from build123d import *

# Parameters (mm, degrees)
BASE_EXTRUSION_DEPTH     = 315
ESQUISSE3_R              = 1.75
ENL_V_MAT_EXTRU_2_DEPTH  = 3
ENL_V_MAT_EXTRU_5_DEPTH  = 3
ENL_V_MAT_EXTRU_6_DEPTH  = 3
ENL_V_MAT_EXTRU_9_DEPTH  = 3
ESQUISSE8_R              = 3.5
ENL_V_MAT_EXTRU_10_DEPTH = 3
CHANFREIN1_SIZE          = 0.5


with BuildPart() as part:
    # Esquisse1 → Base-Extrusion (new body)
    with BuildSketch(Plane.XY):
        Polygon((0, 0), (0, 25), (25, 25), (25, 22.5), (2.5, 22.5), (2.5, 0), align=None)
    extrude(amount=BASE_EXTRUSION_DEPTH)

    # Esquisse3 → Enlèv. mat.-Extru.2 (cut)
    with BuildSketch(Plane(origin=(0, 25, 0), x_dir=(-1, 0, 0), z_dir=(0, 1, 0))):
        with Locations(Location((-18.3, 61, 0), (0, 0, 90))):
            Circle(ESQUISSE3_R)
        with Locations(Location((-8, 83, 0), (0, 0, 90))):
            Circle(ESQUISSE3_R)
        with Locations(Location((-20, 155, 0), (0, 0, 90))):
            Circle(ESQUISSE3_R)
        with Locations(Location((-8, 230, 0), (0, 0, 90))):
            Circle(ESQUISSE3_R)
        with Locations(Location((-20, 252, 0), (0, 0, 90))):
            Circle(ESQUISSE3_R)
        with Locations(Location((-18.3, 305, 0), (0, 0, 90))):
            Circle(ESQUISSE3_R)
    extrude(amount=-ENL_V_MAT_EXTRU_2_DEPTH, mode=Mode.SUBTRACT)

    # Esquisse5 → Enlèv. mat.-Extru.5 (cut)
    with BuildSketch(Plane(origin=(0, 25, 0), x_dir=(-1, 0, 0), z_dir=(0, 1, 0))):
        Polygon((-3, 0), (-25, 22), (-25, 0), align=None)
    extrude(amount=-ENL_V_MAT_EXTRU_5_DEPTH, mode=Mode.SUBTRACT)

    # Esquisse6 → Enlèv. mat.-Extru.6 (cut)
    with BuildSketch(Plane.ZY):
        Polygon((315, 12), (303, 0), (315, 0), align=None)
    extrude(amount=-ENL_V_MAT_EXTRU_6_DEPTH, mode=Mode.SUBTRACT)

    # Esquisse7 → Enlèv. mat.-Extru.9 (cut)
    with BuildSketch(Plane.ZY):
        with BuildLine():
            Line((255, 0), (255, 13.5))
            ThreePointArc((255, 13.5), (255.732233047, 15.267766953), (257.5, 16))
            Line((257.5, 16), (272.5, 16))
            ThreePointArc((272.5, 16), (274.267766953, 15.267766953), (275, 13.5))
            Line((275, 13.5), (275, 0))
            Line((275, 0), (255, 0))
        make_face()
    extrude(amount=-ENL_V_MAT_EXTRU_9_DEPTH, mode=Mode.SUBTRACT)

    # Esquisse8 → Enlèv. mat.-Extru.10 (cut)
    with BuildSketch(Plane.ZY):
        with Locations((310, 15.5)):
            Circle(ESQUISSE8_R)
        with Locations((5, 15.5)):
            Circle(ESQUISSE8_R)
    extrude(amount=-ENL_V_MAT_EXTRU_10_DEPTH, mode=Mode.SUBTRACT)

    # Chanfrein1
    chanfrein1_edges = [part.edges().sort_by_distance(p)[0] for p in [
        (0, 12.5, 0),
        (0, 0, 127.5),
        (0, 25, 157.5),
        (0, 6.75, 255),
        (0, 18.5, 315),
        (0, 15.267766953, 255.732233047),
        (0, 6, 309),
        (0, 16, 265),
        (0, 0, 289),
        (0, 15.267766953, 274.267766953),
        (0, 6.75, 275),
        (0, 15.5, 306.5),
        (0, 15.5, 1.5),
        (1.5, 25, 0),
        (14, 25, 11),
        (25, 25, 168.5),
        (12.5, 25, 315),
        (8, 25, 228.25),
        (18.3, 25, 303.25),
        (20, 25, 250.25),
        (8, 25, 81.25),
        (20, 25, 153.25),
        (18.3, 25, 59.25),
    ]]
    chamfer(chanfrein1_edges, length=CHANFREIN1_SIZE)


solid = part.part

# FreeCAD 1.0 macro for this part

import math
import FreeCAD as App
import Part
import Sketcher

V = App.Vector
Q = App.Units.Quantity


def edges_at(feature, points):
    """Names of the edges that pass closest to the given points."""
    edges = feature.Shape.Edges
    near = lambda p: min(range(len(edges)), key=lambda i: edges[i].distToShape(Part.Vertex(*p))[0])
    return sorted({f"Edge{near(p) + 1}" for p in points})

doc = App.newDocument("Part")
params = doc.addObject("Spreadsheet::Sheet", "Params")
for row, (alias, value) in enumerate([
    ("sketch1_width", "25 mm"),
    ("sketch1_width2", "2.5 mm"),
    ("pad1_length", "315 mm"),
    ("sketch2_diameter", "3.5 mm"),
    ("pocket1_length", "3 mm"),
    ("sketch3_width", "22 mm"),
    ("pocket2_length", "3 mm"),
    ("sketch4_width", "12 mm"),
    ("pocket3_length", "3 mm"),
    ("sketch5_radius", "2.5 mm"),
    ("sketch5_height", "20 mm"),
    ("sketch5_width", "13.5 mm"),
    ("pocket4_length", "3 mm"),
    ("sketch6_diameter", "7 mm"),
    ("pocket5_length", "3 mm"),
    ("chamfer_size", "0.5 mm"),
], start=1):
    params.set(f"A{row}", alias)
    params.set(f"B{row}", "=" + value)
    params.setAlias(f"B{row}", alias)

body = doc.addObject("PartDesign::Body", "Body")

# Sketch on XY plane
sketch1 = body.newObject("Sketcher::SketchObject", "Sketch")
sketch1.AttachmentSupport = (doc.getObject("XY_Plane"), [""])
sketch1.MapMode = "FlatFace"
sketch1.addGeometry(Part.LineSegment(V(0, 25, 0), V(0, 0, 0)), False)
sketch1.addGeometry(Part.LineSegment(V(0, 0, 0), V(2.5, 0, 0)), False)
sketch1.addGeometry(Part.LineSegment(V(2.5, 0, 0), V(2.5, 22.5, 0)), False)
sketch1.addGeometry(Part.LineSegment(V(2.5, 22.5, 0), V(25, 22.5, 0)), False)
sketch1.addGeometry(Part.LineSegment(V(25, 22.5, 0), V(25, 25, 0)), False)
sketch1.addGeometry(Part.LineSegment(V(25, 25, 0), V(0, 25, 0)), False)
sketch1.addConstraint(Sketcher.Constraint("Coincident", 0, 2, 1, 1))
sketch1.addConstraint(Sketcher.Constraint("Coincident", 1, 2, 2, 1))
sketch1.addConstraint(Sketcher.Constraint("Coincident", 2, 2, 3, 1))
sketch1.addConstraint(Sketcher.Constraint("Coincident", 3, 2, 4, 1))
sketch1.addConstraint(Sketcher.Constraint("Coincident", 4, 2, 5, 1))
sketch1.addConstraint(Sketcher.Constraint("Coincident", 5, 2, 0, 1))
sketch1.addConstraint(Sketcher.Constraint("Vertical", 0))
sketch1.addConstraint(Sketcher.Constraint("Horizontal", 1))
sketch1.addConstraint(Sketcher.Constraint("Vertical", 2))
sketch1.addConstraint(Sketcher.Constraint("Horizontal", 3))
sketch1.addConstraint(Sketcher.Constraint("Vertical", 4))
sketch1.addConstraint(Sketcher.Constraint("Horizontal", 5))
sketch1.addConstraint(Sketcher.Constraint("Coincident", 0, 2, -1, 1))
sketch1.addConstraint(Sketcher.Constraint("Equal", 5, 0))
sketch1.addConstraint(Sketcher.Constraint("Equal", 3, 2))
sketch1.addConstraint(Sketcher.Constraint("DistanceX", 5, 2, 5, 1, Q("25 mm")))
sketch1.addConstraint(Sketcher.Constraint("DistanceX", 1, 1, 1, 2, Q("2.5 mm")))
sketch1.setExpression("Constraints[15]", "Params.sketch1_width")
sketch1.setExpression("Constraints[16]", "Params.sketch1_width2")
pad1 = body.newObject("PartDesign::Pad", "Pad")
pad1.Profile = sketch1
pad1.setExpression("Length", "Params.pad1_length")

# Sketch on XZ plane
sketch2 = body.newObject("Sketcher::SketchObject", "Sketch001")
sketch2.AttachmentSupport = (doc.getObject("XZ_Plane"), [""])
sketch2.MapMode = "FlatFace"
sketch2.AttachmentOffset = App.Placement(V(0, 0, -25), App.Rotation())
sketch2.addGeometry(Part.Circle(V(18.3, 61, 0), V(0, 0, 1), 1.8), False)
sketch2.addGeometry(Part.Circle(V(8, 83, 0), V(0, 0, 1), 1.8), False)
sketch2.addGeometry(Part.Circle(V(20, 155, 0), V(0, 0, 1), 1.8), False)
sketch2.addGeometry(Part.Circle(V(8, 230, 0), V(0, 0, 1), 1.8), False)
sketch2.addGeometry(Part.Circle(V(20, 252, 0), V(0, 0, 1), 1.8), False)
sketch2.addGeometry(Part.Circle(V(18.3, 305, 0), V(0, 0, 1), 1.8), False)
sketch2.addConstraint(Sketcher.Constraint("Equal", 0, 1))
sketch2.addConstraint(Sketcher.Constraint("Equal", 1, 2))
sketch2.addConstraint(Sketcher.Constraint("Equal", 2, 3))
sketch2.addConstraint(Sketcher.Constraint("Equal", 3, 4))
sketch2.addConstraint(Sketcher.Constraint("Equal", 4, 5))
sketch2.addConstraint(Sketcher.Constraint("Vertical", 1, 3, 3, 3))
sketch2.addConstraint(Sketcher.Constraint("Vertical", 2, 3, 4, 3))
sketch2.addConstraint(Sketcher.Constraint("Vertical", 0, 3, 5, 3))
sketch2.addConstraint(Sketcher.Constraint("Diameter", 0, Q("3.5 mm")))
sketch2.addConstraint(Sketcher.Constraint("DistanceY", -1, 1, 0, 3, Q("61 mm")))
sketch2.addConstraint(Sketcher.Constraint("DistanceX", -1, 1, 1, 3, Q("8 mm")))
sketch2.addConstraint(Sketcher.Constraint("DistanceY", -1, 1, 1, 3, Q("83 mm")))
sketch2.addConstraint(Sketcher.Constraint("DistanceX", -1, 1, 2, 3, Q("20 mm")))
sketch2.addConstraint(Sketcher.Constraint("DistanceY", -1, 1, 2, 3, Q("155 mm")))
sketch2.addConstraint(Sketcher.Constraint("DistanceY", -1, 1, 3, 3, Q("230 mm")))
sketch2.addConstraint(Sketcher.Constraint("DistanceY", -1, 1, 4, 3, Q("252 mm")))
sketch2.addConstraint(Sketcher.Constraint("DistanceY", -1, 1, 5, 3, Q("305 mm")))
sketch2.addConstraint(Sketcher.Constraint("DistanceX", -1, 1, 0, 3, Q("18.3 mm")))
sketch2.setExpression("Constraints[8]", "Params.sketch2_diameter")
pocket1 = body.newObject("PartDesign::Pocket", "Pocket")
pocket1.Profile = sketch2
pocket1.setExpression("Length", "Params.pocket1_length")
pocket1.Reversed = True

# Sketch on XZ plane
sketch3 = body.newObject("Sketcher::SketchObject", "Sketch002")
sketch3.AttachmentSupport = (doc.getObject("XZ_Plane"), [""])
sketch3.MapMode = "FlatFace"
sketch3.AttachmentOffset = App.Placement(V(0, 0, -25), App.Rotation())
sketch3.addGeometry(Part.LineSegment(V(3, 0, 0), V(25, 22, 0)), False)
sketch3.addGeometry(Part.LineSegment(V(25, 22, 0), V(25, 0, 0)), False)
sketch3.addGeometry(Part.LineSegment(V(25, 0, 0), V(3, 0, 0)), False)
sketch3.addConstraint(Sketcher.Constraint("Coincident", 0, 2, 1, 1))
sketch3.addConstraint(Sketcher.Constraint("Coincident", 1, 2, 2, 1))
sketch3.addConstraint(Sketcher.Constraint("Coincident", 2, 2, 0, 1))
sketch3.addConstraint(Sketcher.Constraint("Vertical", 1))
sketch3.addConstraint(Sketcher.Constraint("Horizontal", 2))
sketch3.addConstraint(Sketcher.Constraint("PointOnObject", 1, 2, -1))
sketch3.addConstraint(Sketcher.Constraint("Equal", 2, 1))
sketch3.addConstraint(Sketcher.Constraint("DistanceX", 2, 2, 2, 1, Q("22 mm")))
sketch3.addConstraint(Sketcher.Constraint("DistanceX", -1, 1, 0, 2, Q("25 mm")))
sketch3.setExpression("Constraints[7]", "Params.sketch3_width")
pocket2 = body.newObject("PartDesign::Pocket", "Pocket001")
pocket2.Profile = sketch3
pocket2.setExpression("Length", "Params.pocket2_length")
pocket2.Reversed = True

# Sketch on YZ plane
sketch4 = body.newObject("Sketcher::SketchObject", "Sketch003")
sketch4.AttachmentSupport = (doc.getObject("YZ_Plane"), [""])
sketch4.MapMode = "FlatFace"
sketch4.addGeometry(Part.LineSegment(V(12, 315, 0), V(0, 303, 0)), False)
sketch4.addGeometry(Part.LineSegment(V(0, 303, 0), V(0, 315, 0)), False)
sketch4.addGeometry(Part.LineSegment(V(0, 315, 0), V(12, 315, 0)), False)
sketch4.addConstraint(Sketcher.Constraint("Coincident", 0, 2, 1, 1))
sketch4.addConstraint(Sketcher.Constraint("Coincident", 1, 2, 2, 1))
sketch4.addConstraint(Sketcher.Constraint("Coincident", 2, 2, 0, 1))
sketch4.addConstraint(Sketcher.Constraint("Vertical", 1))
sketch4.addConstraint(Sketcher.Constraint("Horizontal", 2))
sketch4.addConstraint(Sketcher.Constraint("PointOnObject", 0, 2, -2))
sketch4.addConstraint(Sketcher.Constraint("Equal", 2, 1))
sketch4.addConstraint(Sketcher.Constraint("DistanceX", 2, 1, 2, 2, Q("12 mm")))
sketch4.addConstraint(Sketcher.Constraint("DistanceY", -1, 1, 0, 2, Q("303 mm")))
sketch4.setExpression("Constraints[7]", "Params.sketch4_width")
pocket3 = body.newObject("PartDesign::Pocket", "Pocket002")
pocket3.Profile = sketch4
pocket3.setExpression("Length", "Params.pocket3_length")
pocket3.Reversed = True

# Sketch on YZ plane
sketch5 = body.newObject("Sketcher::SketchObject", "Sketch004")
sketch5.AttachmentSupport = (doc.getObject("YZ_Plane"), [""])
sketch5.MapMode = "FlatFace"
sketch5.addGeometry(Part.LineSegment(V(13.5, 255, 0), V(0, 255, 0)), False)
sketch5.addGeometry(Part.LineSegment(V(0, 255, 0), V(0, 275, 0)), False)
sketch5.addGeometry(Part.LineSegment(V(0, 275, 0), V(13.5, 275, 0)), False)
sketch5.addGeometry(Part.ArcOfCircle(Part.Circle(V(13.5, 272.5, 0), V(0, 0, 1), 2.5), math.radians(0), math.radians(90)), False)
sketch5.addGeometry(Part.LineSegment(V(16, 272.5, 0), V(16, 257.5, 0)), False)
sketch5.addGeometry(Part.ArcOfCircle(Part.Circle(V(13.5, 257.5, 0), V(0, 0, 1), 2.5), math.radians(-90), math.radians(0)), False)
sketch5.addConstraint(Sketcher.Constraint("Coincident", 0, 2, 1, 1))
sketch5.addConstraint(Sketcher.Constraint("Coincident", 1, 2, 2, 1))
sketch5.addConstraint(Sketcher.Constraint("Tangent", 2, 2, 3, 2))
sketch5.addConstraint(Sketcher.Constraint("Tangent", 3, 1, 4, 1))
sketch5.addConstraint(Sketcher.Constraint("Tangent", 4, 2, 5, 2))
sketch5.addConstraint(Sketcher.Constraint("Tangent", 5, 1, 0, 1))
sketch5.addConstraint(Sketcher.Constraint("Horizontal", 0))
sketch5.addConstraint(Sketcher.Constraint("Vertical", 1))
sketch5.addConstraint(Sketcher.Constraint("Horizontal", 2))
sketch5.addConstraint(Sketcher.Constraint("Vertical", 4))
sketch5.addConstraint(Sketcher.Constraint("Equal", 3, 5))
sketch5.addConstraint(Sketcher.Constraint("PointOnObject", 0, 2, -2))
sketch5.addConstraint(Sketcher.Constraint("Radius", 3, Q("2.5 mm")))
sketch5.addConstraint(Sketcher.Constraint("DistanceY", 1, 1, 1, 2, Q("20 mm")))
sketch5.addConstraint(Sketcher.Constraint("DistanceX", 0, 2, 0, 1, Q("13.5 mm")))
sketch5.addConstraint(Sketcher.Constraint("DistanceY", -1, 1, 0, 2, Q("255 mm")))
sketch5.setExpression("Constraints[12]", "Params.sketch5_radius")
sketch5.setExpression("Constraints[13]", "Params.sketch5_height")
sketch5.setExpression("Constraints[14]", "Params.sketch5_width")
pocket4 = body.newObject("PartDesign::Pocket", "Pocket003")
pocket4.Profile = sketch5
pocket4.setExpression("Length", "Params.pocket4_length")
pocket4.Reversed = True

# Sketch on YZ plane
sketch6 = body.newObject("Sketcher::SketchObject", "Sketch005")
sketch6.AttachmentSupport = (doc.getObject("YZ_Plane"), [""])
sketch6.MapMode = "FlatFace"
sketch6.addGeometry(Part.Circle(V(15.5, 310, 0), V(0, 0, 1), 3.5), False)
sketch6.addGeometry(Part.Circle(V(15.5, 5, 0), V(0, 0, 1), 3.5), False)
sketch6.addConstraint(Sketcher.Constraint("Equal", 0, 1))
sketch6.addConstraint(Sketcher.Constraint("Vertical", 0, 3, 1, 3))
sketch6.addConstraint(Sketcher.Constraint("Diameter", 0, Q("7 mm")))
sketch6.addConstraint(Sketcher.Constraint("DistanceY", -1, 1, 0, 3, Q("310 mm")))
sketch6.addConstraint(Sketcher.Constraint("DistanceY", -1, 1, 1, 3, Q("5 mm")))
sketch6.addConstraint(Sketcher.Constraint("DistanceX", -1, 1, 0, 3, Q("15.5 mm")))
sketch6.setExpression("Constraints[2]", "Params.sketch6_diameter")
pocket5 = body.newObject("PartDesign::Pocket", "Pocket004")
pocket5.Profile = sketch6
pocket5.setExpression("Length", "Params.pocket5_length")
pocket5.Reversed = True
doc.recompute()

chamfer = body.newObject("PartDesign::Chamfer", "Chamfer")
chamfer.Base = (pocket5, edges_at(pocket5, [
    (0, 12.5, 0),
    (0, 0, 127.5),
    (0, 25, 157.5),
    (0, 6.75, 255),
    (0, 18.5, 315),
    (0, 15.268, 255.732),
    (0, 6, 309),
    (0, 16, 265),
    (0, 0, 289),
    (0, 15.268, 274.268),
    (0, 6.75, 275),
    (0, 15.5, 306.5),
    (0, 15.5, 1.5),
    (1.5, 25, 0),
    (14, 25, 11),
    (25, 25, 168.5),
    (12.5, 25, 315),
    (8, 25, 228.25),
    (18.3, 25, 303.25),
    (20, 25, 250.25),
    (8, 25, 81.25),
    (20, 25, 153.25),
    (18.3, 25, 59.25),
]))
chamfer.setExpression("Size", "Params.chamfer_size")

doc.recompute()
